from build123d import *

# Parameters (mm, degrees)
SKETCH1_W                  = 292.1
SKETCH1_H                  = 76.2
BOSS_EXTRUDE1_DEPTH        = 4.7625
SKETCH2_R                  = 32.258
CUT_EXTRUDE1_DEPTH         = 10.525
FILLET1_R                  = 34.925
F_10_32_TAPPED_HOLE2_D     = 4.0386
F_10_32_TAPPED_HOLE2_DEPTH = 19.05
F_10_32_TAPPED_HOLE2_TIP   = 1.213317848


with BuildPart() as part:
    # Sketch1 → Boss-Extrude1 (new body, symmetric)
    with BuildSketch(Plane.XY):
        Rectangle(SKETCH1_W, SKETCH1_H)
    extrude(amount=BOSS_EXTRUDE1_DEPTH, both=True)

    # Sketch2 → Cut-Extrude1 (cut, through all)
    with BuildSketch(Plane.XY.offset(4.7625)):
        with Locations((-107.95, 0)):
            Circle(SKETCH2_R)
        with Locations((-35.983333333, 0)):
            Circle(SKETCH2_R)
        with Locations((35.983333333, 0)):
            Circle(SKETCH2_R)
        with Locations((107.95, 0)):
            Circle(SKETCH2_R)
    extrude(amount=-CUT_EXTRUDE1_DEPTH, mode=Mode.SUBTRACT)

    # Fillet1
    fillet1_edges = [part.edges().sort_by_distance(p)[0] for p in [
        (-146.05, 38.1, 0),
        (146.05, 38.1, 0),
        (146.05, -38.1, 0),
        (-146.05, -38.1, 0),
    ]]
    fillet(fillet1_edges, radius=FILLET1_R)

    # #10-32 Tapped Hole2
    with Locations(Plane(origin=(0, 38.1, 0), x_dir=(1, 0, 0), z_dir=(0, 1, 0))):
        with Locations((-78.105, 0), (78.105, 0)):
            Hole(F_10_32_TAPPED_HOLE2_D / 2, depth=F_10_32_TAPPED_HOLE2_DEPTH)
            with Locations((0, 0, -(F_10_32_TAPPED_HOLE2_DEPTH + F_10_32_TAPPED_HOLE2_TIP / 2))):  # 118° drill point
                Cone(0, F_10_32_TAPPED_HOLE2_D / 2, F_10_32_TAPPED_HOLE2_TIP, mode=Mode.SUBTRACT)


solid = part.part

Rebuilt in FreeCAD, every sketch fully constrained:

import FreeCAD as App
import Part
import Sketcher
from FreeCAD import Vector
Q = App.Units.Quantity


def edges_at(feature, points):
    """Names of the edges that pass closest to the given points."""
    edges = feature.Shape.Edges
    near = lambda p: min(range(len(edges)), key=lambda i: edges[i].distToShape(Part.Vertex(*p))[0])
    return sorted({f"Edge{near(p) + 1}" for p in points})


def add_polygon(sketch, points):
    """Adds a closed chain of lines whose ends are joined by coincident constraints."""
    first, n = sketch.GeometryCount, len(points)
    for a, b in zip(points, points[1:] + points[:1]):
        sketch.addGeometry(Part.LineSegment(App.Vector(*a, 0), App.Vector(*b, 0)), False)
    for i in range(n):
        sketch.addConstraint(Sketcher.Constraint("Coincident", first + i, 2, first + (i + 1) % n, 1))

doc = App.newDocument("Part")
body = doc.addObject("PartDesign::Body", "Body")

# Sketch on XY plane
sketch1 = body.newObject("Sketcher::SketchObject", "Sketch")
sketch1.AttachmentSupport = (doc.getObject("XY_Plane"), [""])
sketch1.MapMode = "FlatFace"
add_polygon(sketch1, [(-146, 38), (-146, -38), (146, -38), (146, 38)])  # lines 0-3
sketch1.addConstraint([
    Sketcher.Constraint("Vertical", 0),
    Sketcher.Constraint("Horizontal", 1),
    Sketcher.Constraint("Vertical", 2),
    Sketcher.Constraint("Horizontal", 3),
    Sketcher.Constraint("Symmetric", 0, 2, 2, 2, -1, 1),
    Sketcher.Constraint("DistanceY", 0, 2, 0, 1, Q("3 in")),
    Sketcher.Constraint("DistanceX", 1, 1, 1, 2, Q("11.5 in")),
])
pad1 = body.newObject("PartDesign::Pad", "Pad")
pad1.Profile = sketch1
pad1.Length = Q("0.375 in")
pad1.Midplane = True

# Sketch on XY plane
sketch2 = body.newObject("Sketcher::SketchObject", "Sketch001")
sketch2.AttachmentSupport = (doc.getObject("XY_Plane"), [""])
sketch2.MapMode = "FlatFace"
sketch2.AttachmentOffset = App.Placement(Vector(0, 0, 0.1875 * 25.4), App.Rotation())
sketch2.addGeometry([
    Part.Circle(Vector(-108, 0, 0), Vector(0, 0, 1), 32),
    Part.Circle(Vector(-36, 0, 0), Vector(0, 0, 1), 32),
    Part.Circle(Vector(36, 0, 0), Vector(0, 0, 1), 32),
    Part.Circle(Vector(108, 0, 0), Vector(0, 0, 1), 32),
], False)
sketch2.addConstraint([
    Sketcher.Constraint("Equal", 0, 1),
    Sketcher.Constraint("Equal", 1, 2),
    Sketcher.Constraint("Equal", 2, 3),
    Sketcher.Constraint("Symmetric", 1, 3, 2, 3, -1, 1),
    Sketcher.Constraint("Symmetric", 0, 3, 3, 3, -1, 1),
    Sketcher.Constraint("PointOnObject", 0, 3, -1),
    Sketcher.Constraint("PointOnObject", 1, 3, -1),
    Sketcher.Constraint("Diameter", 0, Q("2.54 in")),
    Sketcher.Constraint("DistanceX", 0, 3, 3, 3, Q("8.5 in")),
    Sketcher.Constraint("DistanceX", 1, 3, -1, 1, Q("35.983333 mm")),
])
pocket1 = body.newObject("PartDesign::Pocket", "Pocket")
pocket1.Profile = sketch2
pocket1.Type = "ThroughAll"
doc.recompute()

fillet = body.newObject("PartDesign::Fillet", "Fillet")
fillet.Base = (pocket1, edges_at(pocket1, [
    (-146.05, 38.1, 0),
    (146.05, 38.1, 0),
    (146.05, -38.1, 0),
    (-146.05, -38.1, 0),
]))
fillet.Radius = Q("1.375 in")

# Sketch on XZ plane
sketch3 = body.newObject("Sketcher::SketchObject", "Sketch002")
sketch3.AttachmentSupport = (doc.getObject("XZ_Plane"), [""])
sketch3.MapMode = "FlatFace"
sketch3.AttachmentOffset = App.Placement(Vector(0, 0, -1.5 * 25.4), App.Rotation())
sketch3.addGeometry([
    Part.Circle(Vector(-78.1, 0, 0), Vector(0, 0, 1), 2),
    Part.Circle(Vector(78.1, 0, 0), Vector(0, 0, 1), 2),
], False)
sketch3.addConstraint([
    Sketcher.Constraint("Equal", 0, 1),
    Sketcher.Constraint("Symmetric", 0, 3, 1, 3, -1, 1),
    Sketcher.Constraint("PointOnObject", 0, 3, -1),
    Sketcher.Constraint("Diameter", 0, Q("0.159 in")),
    Sketcher.Constraint("DistanceX", 0, 3, 1, 3, Q("6.15 in")),
])
doc.recompute()
hole = body.newObject("PartDesign::Hole", "Hole")
hole.Profile = sketch3
hole.ThreadType = "None"
hole.Diameter = Q("0.159 in")
hole.DepthType = "Dimension"
hole.Depth = Q("0.75 in")
hole.DrillPoint = "Angled"
hole.DrillPointAngle = 118
hole.Reversed = True

doc.recompute()
